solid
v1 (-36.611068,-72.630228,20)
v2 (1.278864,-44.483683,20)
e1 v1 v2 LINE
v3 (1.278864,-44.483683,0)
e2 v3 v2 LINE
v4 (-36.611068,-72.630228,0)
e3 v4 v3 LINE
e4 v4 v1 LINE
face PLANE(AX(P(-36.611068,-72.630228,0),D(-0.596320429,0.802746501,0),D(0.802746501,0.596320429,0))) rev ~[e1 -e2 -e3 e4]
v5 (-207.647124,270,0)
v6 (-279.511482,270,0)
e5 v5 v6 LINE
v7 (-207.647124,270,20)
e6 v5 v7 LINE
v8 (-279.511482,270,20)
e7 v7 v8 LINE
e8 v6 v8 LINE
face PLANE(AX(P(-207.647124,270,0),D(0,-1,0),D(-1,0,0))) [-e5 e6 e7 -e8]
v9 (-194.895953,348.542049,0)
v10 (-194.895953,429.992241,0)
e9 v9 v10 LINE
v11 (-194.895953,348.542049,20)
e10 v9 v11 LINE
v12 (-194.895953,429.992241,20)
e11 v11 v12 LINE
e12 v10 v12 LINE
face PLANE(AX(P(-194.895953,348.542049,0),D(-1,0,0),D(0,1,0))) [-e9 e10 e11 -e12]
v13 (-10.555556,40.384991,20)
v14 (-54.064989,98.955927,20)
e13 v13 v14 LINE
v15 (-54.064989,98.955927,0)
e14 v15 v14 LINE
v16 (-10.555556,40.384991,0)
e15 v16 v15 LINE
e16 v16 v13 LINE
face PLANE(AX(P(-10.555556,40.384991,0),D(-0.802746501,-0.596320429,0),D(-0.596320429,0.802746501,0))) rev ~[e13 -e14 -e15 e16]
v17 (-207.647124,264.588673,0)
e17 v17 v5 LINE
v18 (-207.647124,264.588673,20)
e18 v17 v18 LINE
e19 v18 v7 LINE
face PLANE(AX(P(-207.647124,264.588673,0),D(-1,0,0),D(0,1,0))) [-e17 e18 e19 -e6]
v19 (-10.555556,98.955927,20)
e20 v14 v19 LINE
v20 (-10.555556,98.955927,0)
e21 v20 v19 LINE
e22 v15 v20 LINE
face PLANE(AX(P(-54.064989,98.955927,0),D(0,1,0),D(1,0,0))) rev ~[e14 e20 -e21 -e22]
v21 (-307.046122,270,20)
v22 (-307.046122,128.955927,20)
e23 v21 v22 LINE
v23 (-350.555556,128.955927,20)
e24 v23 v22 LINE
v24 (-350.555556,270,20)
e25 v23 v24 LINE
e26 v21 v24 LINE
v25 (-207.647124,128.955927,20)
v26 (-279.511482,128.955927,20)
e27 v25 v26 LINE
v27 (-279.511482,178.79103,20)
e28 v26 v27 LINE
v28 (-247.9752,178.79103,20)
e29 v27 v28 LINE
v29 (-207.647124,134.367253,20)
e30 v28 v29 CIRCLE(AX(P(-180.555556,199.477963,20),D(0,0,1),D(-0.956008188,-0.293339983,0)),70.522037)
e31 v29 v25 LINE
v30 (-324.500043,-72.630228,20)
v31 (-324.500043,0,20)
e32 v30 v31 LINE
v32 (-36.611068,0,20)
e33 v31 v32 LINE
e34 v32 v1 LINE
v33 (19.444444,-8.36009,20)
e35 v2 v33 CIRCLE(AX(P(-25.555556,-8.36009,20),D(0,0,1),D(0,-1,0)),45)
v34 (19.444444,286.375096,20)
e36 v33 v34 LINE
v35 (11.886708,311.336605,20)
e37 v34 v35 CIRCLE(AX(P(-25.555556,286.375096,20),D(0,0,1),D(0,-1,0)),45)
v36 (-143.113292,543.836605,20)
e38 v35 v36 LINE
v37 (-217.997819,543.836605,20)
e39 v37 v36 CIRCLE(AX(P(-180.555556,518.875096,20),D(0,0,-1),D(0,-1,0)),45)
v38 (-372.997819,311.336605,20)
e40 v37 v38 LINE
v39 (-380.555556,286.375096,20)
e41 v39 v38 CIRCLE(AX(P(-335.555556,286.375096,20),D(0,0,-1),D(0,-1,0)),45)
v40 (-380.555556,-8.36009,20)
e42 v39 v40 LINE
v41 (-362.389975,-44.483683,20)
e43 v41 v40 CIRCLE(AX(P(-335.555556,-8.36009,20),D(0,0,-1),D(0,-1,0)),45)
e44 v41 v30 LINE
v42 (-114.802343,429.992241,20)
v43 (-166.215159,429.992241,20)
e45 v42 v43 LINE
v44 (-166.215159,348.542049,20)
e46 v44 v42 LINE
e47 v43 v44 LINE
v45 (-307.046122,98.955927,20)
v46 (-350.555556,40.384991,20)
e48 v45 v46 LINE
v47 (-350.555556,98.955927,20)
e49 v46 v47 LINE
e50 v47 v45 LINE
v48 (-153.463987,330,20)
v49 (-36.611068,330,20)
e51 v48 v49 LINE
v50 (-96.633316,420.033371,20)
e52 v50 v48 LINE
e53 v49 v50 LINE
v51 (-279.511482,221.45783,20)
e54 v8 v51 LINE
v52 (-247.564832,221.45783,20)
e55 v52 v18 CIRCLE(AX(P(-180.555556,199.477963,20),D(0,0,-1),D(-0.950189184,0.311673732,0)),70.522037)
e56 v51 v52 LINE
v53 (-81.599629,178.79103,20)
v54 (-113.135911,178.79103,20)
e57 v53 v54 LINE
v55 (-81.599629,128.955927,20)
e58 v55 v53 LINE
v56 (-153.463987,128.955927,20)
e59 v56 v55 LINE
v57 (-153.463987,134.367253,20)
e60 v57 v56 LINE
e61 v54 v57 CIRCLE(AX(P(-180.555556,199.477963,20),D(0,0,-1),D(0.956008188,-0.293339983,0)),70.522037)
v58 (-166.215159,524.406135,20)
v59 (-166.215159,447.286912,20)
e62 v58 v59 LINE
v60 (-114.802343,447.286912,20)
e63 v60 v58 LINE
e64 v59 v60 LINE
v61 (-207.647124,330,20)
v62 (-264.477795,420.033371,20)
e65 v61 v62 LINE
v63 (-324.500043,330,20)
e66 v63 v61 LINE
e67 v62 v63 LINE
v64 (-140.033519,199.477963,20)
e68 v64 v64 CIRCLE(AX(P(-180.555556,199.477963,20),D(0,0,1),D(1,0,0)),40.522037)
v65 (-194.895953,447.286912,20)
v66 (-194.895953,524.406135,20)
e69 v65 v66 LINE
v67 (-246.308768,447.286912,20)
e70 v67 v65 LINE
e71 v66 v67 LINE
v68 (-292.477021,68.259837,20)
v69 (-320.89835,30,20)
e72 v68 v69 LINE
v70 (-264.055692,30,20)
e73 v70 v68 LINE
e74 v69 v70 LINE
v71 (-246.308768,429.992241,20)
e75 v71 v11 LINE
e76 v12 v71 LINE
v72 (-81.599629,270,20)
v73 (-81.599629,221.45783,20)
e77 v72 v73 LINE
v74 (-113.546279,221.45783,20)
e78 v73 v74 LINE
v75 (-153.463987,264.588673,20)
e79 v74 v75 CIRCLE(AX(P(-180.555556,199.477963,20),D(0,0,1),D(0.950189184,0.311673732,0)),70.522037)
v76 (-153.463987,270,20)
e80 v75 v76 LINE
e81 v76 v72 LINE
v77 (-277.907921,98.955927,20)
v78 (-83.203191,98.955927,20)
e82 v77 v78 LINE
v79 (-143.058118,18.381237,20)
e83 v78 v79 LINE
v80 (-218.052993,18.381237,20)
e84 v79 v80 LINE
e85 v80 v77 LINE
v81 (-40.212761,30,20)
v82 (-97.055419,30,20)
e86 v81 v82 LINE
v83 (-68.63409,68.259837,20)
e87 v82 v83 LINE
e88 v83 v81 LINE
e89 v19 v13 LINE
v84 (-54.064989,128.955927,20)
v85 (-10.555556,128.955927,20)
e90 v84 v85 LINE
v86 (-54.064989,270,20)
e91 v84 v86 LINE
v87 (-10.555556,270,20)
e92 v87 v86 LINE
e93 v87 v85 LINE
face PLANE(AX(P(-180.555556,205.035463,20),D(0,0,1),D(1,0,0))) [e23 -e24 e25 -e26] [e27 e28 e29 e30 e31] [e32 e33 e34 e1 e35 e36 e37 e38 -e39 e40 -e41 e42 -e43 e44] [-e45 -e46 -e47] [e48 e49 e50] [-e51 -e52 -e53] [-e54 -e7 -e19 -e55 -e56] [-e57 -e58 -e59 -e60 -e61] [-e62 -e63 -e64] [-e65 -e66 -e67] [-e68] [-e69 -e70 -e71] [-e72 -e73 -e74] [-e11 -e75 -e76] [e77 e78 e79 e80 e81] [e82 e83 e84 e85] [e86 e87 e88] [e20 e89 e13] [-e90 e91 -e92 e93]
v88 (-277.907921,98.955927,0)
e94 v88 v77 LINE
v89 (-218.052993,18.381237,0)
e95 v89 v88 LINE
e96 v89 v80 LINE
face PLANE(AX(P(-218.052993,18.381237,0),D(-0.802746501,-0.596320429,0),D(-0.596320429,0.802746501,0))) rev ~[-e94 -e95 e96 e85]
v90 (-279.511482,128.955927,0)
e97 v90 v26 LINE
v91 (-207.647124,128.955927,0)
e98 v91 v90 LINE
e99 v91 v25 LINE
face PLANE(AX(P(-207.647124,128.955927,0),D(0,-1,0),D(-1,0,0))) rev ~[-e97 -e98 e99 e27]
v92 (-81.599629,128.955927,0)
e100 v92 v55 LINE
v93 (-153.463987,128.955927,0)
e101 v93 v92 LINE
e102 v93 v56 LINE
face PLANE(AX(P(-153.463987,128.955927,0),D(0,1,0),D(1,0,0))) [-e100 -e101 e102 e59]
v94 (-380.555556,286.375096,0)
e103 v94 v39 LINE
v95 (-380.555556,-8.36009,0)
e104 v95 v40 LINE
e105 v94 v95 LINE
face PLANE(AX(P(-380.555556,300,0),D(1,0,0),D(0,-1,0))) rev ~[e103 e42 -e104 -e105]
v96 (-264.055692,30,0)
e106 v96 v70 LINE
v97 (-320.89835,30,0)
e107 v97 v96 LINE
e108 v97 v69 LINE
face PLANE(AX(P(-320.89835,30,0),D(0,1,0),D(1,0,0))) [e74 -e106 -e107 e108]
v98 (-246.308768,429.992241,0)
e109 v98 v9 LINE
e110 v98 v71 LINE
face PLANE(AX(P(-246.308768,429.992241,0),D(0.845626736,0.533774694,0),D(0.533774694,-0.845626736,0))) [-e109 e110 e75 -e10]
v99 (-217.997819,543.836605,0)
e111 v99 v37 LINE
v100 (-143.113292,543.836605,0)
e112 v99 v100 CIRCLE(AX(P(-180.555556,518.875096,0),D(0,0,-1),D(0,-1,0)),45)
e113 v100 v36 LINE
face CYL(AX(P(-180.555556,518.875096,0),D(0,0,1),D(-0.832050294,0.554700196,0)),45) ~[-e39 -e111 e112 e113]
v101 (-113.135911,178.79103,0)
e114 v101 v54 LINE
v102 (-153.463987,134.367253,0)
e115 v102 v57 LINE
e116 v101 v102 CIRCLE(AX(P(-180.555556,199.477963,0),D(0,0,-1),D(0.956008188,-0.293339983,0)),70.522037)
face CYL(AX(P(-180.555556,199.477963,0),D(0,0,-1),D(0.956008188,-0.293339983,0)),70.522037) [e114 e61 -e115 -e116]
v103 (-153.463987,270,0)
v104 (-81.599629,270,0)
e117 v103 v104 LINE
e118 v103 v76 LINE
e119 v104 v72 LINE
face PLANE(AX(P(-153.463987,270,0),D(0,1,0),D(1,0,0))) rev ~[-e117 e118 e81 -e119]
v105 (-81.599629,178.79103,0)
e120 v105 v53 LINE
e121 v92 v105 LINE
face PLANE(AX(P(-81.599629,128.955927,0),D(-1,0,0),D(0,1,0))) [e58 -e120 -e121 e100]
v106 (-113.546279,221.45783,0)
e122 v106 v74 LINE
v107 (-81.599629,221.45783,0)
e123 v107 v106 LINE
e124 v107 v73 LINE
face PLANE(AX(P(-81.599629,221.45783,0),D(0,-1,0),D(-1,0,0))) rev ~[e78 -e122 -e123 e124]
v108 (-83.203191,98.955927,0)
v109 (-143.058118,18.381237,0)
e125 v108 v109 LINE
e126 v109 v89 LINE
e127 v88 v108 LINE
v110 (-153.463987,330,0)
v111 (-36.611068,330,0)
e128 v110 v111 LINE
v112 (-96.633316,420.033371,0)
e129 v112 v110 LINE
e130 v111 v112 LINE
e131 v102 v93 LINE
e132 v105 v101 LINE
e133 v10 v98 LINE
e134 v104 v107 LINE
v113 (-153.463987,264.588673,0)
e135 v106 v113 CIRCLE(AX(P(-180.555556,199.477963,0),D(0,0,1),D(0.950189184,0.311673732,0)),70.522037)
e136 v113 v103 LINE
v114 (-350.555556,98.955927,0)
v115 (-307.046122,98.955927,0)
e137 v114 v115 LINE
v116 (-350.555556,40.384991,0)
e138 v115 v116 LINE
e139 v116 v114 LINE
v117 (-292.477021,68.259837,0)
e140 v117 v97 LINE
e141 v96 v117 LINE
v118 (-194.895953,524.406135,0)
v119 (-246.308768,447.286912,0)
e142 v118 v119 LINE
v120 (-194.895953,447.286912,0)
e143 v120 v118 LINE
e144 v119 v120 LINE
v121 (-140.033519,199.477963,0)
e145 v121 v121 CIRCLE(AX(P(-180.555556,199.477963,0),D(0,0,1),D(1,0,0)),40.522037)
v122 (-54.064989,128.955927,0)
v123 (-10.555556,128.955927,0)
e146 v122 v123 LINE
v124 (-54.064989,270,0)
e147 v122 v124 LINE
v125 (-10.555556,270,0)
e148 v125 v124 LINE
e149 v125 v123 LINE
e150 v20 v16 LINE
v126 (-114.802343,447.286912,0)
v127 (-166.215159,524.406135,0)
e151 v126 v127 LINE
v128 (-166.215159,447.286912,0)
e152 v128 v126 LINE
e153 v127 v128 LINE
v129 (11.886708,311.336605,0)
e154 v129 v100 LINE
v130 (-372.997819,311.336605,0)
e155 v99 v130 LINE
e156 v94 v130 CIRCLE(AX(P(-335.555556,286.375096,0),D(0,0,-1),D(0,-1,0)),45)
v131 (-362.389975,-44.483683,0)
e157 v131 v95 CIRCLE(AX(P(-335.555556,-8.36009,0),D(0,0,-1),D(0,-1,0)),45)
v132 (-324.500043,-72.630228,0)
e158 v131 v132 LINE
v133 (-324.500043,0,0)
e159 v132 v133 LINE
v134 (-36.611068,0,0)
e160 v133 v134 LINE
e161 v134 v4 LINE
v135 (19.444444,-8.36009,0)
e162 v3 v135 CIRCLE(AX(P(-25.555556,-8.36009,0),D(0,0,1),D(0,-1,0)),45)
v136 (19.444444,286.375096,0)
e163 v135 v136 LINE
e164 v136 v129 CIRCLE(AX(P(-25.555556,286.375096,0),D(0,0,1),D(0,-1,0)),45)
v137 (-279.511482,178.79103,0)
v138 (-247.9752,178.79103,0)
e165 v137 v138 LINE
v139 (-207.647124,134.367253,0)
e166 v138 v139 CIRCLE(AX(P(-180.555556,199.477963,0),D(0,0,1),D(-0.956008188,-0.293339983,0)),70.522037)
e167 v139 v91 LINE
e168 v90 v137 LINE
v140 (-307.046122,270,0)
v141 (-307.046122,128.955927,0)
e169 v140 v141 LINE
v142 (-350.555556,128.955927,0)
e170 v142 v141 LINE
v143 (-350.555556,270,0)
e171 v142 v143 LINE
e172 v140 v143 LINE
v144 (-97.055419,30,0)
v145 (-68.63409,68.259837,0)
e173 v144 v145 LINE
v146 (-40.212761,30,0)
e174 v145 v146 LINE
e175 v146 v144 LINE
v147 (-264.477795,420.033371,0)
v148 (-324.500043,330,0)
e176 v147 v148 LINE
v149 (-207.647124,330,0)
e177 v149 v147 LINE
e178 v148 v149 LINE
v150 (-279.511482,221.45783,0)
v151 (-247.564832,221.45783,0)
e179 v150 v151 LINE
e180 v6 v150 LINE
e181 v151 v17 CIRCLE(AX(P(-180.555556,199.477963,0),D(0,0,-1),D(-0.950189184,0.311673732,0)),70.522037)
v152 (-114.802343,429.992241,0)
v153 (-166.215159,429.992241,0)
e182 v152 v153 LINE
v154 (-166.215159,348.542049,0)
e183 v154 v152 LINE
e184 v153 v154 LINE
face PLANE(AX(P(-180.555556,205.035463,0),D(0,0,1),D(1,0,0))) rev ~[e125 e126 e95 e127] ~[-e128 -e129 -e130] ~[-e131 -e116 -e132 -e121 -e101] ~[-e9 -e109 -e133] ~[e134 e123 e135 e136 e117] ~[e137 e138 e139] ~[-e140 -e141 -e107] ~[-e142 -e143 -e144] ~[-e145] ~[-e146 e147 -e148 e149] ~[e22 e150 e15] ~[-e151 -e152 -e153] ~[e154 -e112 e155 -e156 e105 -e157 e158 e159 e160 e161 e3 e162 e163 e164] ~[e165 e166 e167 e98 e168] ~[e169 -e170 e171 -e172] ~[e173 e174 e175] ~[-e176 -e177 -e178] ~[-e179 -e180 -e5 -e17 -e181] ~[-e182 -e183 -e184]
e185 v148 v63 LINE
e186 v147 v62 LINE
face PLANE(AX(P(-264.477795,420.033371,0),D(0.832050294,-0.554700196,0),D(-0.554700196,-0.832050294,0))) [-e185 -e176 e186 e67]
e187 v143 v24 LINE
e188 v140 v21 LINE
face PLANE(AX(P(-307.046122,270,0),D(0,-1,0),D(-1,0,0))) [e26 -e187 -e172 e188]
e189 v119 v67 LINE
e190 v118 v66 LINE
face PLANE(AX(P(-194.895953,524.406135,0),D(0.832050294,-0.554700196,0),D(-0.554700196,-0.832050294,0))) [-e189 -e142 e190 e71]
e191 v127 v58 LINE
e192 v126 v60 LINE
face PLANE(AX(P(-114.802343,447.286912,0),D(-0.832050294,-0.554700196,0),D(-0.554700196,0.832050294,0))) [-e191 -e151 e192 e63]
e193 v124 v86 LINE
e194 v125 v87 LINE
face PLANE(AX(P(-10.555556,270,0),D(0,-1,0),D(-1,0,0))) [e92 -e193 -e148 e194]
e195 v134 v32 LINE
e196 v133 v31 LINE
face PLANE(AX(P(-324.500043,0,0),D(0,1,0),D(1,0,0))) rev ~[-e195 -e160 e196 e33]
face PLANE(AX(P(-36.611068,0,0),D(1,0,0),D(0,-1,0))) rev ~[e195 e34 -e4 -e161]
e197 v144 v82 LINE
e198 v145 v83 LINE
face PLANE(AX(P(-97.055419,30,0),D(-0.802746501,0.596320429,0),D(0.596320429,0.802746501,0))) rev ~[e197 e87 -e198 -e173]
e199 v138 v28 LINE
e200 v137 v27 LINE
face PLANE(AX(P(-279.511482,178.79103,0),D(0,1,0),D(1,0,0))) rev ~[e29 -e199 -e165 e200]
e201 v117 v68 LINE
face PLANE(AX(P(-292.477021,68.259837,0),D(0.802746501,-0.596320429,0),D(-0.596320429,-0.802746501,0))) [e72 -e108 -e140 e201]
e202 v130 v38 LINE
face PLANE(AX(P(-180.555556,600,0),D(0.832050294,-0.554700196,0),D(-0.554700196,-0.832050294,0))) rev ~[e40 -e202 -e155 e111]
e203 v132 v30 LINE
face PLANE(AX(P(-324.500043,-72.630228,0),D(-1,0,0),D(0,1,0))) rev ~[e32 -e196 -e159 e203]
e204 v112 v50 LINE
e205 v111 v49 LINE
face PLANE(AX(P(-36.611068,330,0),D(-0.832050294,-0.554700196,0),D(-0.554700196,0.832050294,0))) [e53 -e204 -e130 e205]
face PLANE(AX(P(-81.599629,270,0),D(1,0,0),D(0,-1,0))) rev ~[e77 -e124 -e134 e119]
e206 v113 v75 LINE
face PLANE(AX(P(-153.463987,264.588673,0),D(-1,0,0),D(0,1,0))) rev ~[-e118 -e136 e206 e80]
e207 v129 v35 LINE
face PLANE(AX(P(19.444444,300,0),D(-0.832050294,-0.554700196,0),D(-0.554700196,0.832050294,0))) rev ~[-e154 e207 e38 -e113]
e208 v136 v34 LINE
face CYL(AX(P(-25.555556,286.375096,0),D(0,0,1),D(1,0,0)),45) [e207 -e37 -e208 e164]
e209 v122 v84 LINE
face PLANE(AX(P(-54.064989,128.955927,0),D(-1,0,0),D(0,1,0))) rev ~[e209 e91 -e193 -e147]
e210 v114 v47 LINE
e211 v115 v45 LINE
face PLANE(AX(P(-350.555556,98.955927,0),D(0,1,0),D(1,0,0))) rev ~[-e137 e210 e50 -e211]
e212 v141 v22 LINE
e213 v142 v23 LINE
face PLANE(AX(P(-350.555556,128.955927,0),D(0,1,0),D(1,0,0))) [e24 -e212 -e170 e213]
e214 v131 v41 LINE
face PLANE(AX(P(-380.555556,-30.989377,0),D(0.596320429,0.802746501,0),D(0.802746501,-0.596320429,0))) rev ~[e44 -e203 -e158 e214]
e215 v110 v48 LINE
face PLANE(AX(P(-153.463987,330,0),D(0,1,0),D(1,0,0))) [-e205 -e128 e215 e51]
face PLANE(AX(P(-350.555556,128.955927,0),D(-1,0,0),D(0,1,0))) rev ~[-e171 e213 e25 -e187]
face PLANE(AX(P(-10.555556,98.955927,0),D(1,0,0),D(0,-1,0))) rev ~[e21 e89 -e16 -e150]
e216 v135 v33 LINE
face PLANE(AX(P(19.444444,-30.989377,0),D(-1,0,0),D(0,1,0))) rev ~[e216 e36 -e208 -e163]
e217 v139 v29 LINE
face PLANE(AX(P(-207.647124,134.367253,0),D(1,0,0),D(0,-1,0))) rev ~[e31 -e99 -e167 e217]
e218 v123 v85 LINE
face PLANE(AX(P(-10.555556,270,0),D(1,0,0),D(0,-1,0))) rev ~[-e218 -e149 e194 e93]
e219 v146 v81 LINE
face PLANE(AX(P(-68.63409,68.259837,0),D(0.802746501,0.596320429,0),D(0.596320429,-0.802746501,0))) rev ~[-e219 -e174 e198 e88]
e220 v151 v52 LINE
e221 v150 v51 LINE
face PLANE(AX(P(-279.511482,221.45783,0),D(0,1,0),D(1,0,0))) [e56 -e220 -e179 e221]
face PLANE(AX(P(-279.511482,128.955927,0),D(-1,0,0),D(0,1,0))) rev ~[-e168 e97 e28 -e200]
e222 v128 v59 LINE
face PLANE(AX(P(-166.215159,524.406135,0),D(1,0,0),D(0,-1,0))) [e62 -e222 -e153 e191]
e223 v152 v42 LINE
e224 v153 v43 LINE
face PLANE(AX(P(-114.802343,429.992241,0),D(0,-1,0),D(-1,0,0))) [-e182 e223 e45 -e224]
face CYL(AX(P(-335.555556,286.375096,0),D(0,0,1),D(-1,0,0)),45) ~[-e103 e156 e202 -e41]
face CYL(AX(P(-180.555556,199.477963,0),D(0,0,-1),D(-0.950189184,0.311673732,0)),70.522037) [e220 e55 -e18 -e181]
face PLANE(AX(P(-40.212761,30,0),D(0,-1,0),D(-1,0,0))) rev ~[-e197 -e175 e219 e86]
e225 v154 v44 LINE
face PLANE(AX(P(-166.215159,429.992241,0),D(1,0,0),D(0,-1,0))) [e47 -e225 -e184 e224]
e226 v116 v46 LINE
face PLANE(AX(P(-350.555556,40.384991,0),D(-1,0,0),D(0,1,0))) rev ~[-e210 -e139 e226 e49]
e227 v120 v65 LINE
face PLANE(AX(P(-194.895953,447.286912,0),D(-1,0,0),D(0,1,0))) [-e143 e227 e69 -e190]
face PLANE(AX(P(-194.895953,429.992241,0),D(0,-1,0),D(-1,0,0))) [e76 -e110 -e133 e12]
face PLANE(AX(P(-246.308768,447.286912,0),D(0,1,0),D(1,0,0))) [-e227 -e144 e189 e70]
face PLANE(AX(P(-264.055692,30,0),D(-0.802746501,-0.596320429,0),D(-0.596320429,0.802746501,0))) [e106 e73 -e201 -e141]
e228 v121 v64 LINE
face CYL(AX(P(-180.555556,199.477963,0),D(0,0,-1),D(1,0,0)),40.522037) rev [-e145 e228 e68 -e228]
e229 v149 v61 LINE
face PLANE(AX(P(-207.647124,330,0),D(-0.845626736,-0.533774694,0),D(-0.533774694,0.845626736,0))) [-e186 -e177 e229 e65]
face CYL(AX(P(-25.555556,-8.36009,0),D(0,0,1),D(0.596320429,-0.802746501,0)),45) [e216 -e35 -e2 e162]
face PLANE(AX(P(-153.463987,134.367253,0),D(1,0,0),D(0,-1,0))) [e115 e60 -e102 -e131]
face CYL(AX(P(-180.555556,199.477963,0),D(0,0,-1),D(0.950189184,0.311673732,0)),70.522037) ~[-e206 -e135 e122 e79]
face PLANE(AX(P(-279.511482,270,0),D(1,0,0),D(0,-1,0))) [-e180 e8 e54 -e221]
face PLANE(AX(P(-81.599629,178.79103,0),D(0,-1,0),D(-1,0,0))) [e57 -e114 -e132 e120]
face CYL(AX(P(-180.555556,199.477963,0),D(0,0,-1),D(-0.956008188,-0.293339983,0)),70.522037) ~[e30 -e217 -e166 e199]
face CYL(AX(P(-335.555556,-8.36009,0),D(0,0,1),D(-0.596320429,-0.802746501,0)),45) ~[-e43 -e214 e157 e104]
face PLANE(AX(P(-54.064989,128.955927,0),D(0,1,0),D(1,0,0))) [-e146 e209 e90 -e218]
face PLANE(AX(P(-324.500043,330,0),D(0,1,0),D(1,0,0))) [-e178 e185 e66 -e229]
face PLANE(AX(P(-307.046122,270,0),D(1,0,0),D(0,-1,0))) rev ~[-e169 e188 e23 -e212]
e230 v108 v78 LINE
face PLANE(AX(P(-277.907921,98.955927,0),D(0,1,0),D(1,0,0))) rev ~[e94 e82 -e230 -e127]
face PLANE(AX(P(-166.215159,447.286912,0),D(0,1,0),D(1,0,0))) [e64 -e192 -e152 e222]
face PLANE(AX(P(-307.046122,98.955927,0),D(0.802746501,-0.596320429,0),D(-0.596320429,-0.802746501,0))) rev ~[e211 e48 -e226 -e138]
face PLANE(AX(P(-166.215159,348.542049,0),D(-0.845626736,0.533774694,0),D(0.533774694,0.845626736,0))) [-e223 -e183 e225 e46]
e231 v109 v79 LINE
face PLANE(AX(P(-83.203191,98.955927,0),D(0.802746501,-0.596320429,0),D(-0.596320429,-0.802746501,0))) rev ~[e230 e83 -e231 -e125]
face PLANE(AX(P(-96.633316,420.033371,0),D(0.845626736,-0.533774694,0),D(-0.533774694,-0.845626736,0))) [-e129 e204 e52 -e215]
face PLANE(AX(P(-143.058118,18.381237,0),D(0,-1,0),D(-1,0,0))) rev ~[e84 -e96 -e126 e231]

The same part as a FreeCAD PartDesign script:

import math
import FreeCAD as App
import Part
import Sketcher


def edges_at(feature, points):
    """Names of the edges that pass closest to the given points."""
    edges = feature.Shape.Edges
    near = lambda p: min(range(len(edges)), key=lambda i: edges[i].distToShape(Part.Vertex(*p))[0])
    return sorted({f"Edge{near(p) + 1}" for p in points})

doc = App.newDocument("Part")
body = doc.addObject("PartDesign::Body", "Body")

sketch1 = body.newObject("Sketcher::SketchObject", "Sketch")
sketch1.AttachmentSupport = (doc.getObject("XY_Plane"), [""])
sketch1.MapMode = "FlatFace"
sketch1.addGeometry(Part.LineSegment(App.Vector(-324.500043, 0, 0), App.Vector(-36.611068, 0, 0)), False)
sketch1.addGeometry(Part.LineSegment(App.Vector(-36.611068, 0, 0), App.Vector(-36.611068, -72.630228, 0)), False)
sketch1.addGeometry(Part.LineSegment(App.Vector(-36.611068, -72.630228, 0), App.Vector(19.444444, -30.989377, 0)), False)
sketch1.addGeometry(Part.LineSegment(App.Vector(19.444444, -30.989377, 0), App.Vector(19.444444, 300, 0)), False)
sketch1.addGeometry(Part.LineSegment(App.Vector(19.444444, 300, 0), App.Vector(-180.555556, 600, 0)), False)
sketch1.addGeometry(Part.LineSegment(App.Vector(-180.555556, 600, 0), App.Vector(-380.555556, 300, 0)), False)
sketch1.addGeometry(Part.LineSegment(App.Vector(-380.555556, 300, 0), App.Vector(-380.555556, -30.989377, 0)), False)
sketch1.addGeometry(Part.LineSegment(App.Vector(-380.555556, -30.989377, 0), App.Vector(-324.500043, -72.630228, 0)), False)
sketch1.addGeometry(Part.LineSegment(App.Vector(-324.500043, -72.630228, 0), App.Vector(-324.500043, 0, 0)), False)
sketch1.addGeometry(Part.LineSegment(App.Vector(-350.555556, 40.384991, 0), App.Vector(-350.555556, 98.955927, 0)), False)
sketch1.addGeometry(Part.LineSegment(App.Vector(-350.555556, 98.955927, 0), App.Vector(-307.046122, 98.955927, 0)), False)
sketch1.addGeometry(Part.LineSegment(App.Vector(-307.046122, 98.955927, 0), App.Vector(-350.555556, 40.384991, 0)), False)
sketch1.addGeometry(Part.LineSegment(App.Vector(-264.055692, 30, 0), App.Vector(-320.89835, 30, 0)), False)
sketch1.addGeometry(Part.LineSegment(App.Vector(-320.89835, 30, 0), App.Vector(-292.477021, 68.259837, 0)), False)
sketch1.addGeometry(Part.LineSegment(App.Vector(-292.477021, 68.259837, 0), App.Vector(-264.055692, 30, 0)), False)
sketch1.addGeometry(Part.LineSegment(App.Vector(-307.046122, 128.955927, 0), App.Vector(-350.555556, 128.955927, 0)), False)
sketch1.addGeometry(Part.LineSegment(App.Vector(-350.555556, 128.955927, 0), App.Vector(-350.555556, 270, 0)), False)
sketch1.addGeometry(Part.LineSegment(App.Vector(-350.555556, 270, 0), App.Vector(-307.046122, 270, 0)), False)
sketch1.addGeometry(Part.LineSegment(App.Vector(-307.046122, 270, 0), App.Vector(-307.046122, 128.955927, 0)), False)
sketch1.addGeometry(Part.LineSegment(App.Vector(-207.647124, 128.955927, 0), App.Vector(-279.511482, 128.955927, 0)), False)
sketch1.addGeometry(Part.LineSegment(App.Vector(-279.511482, 128.955927, 0), App.Vector(-279.511482, 178.79103, 0)), False)
sketch1.addGeometry(Part.LineSegment(App.Vector(-279.511482, 178.79103, 0), App.Vector(-247.9752, 178.79103, 0)), False)
sketch1.addGeometry(Part.ArcOfCircle(Part.Circle(App.Vector(-180.555556, 199.477963, 0), App.Vector(0, 0, 1), 70.522037), math.radians(-162.941978), math.radians(-112.591446)), False)
sketch1.addGeometry(Part.LineSegment(App.Vector(-207.647124, 134.367253, 0), App.Vector(-207.647124, 128.955927, 0)), False)
sketch1.addGeometry(Part.LineSegment(App.Vector(-279.511482, 221.45783, 0), App.Vector(-279.511482, 270, 0)), False)
sketch1.addGeometry(Part.LineSegment(App.Vector(-279.511482, 270, 0), App.Vector(-207.647124, 270, 0)), False)
sketch1.addGeometry(Part.LineSegment(App.Vector(-207.647124, 270, 0), App.Vector(-207.647124, 264.588673, 0)), False)
sketch1.addGeometry(Part.ArcOfCircle(Part.Circle(App.Vector(-180.555556, 199.477963, 0), App.Vector(0, 0, 1), 70.522037), math.radians(112.591446), math.radians(161.839874)), False)
sketch1.addGeometry(Part.LineSegment(App.Vector(-247.564832, 221.45783, 0), App.Vector(-279.511482, 221.45783, 0)), False)
sketch1.addGeometry(Part.LineSegment(App.Vector(-143.058118, 18.381237, 0), App.Vector(-218.052993, 18.381237, 0)), False)
sketch1.addGeometry(Part.LineSegment(App.Vector(-218.052993, 18.381237, 0), App.Vector(-277.907921, 98.955927, 0)), False)
sketch1.addGeometry(Part.LineSegment(App.Vector(-277.907921, 98.955927, 0), App.Vector(-83.203191, 98.955927, 0)), False)
sketch1.addGeometry(Part.LineSegment(App.Vector(-83.203191, 98.955927, 0), App.Vector(-143.058118, 18.381237, 0)), False)
sketch1.addGeometry(Part.LineSegment(App.Vector(-68.63409, 68.259837, 0), App.Vector(-40.212761, 30, 0)), False)
sketch1.addGeometry(Part.LineSegment(App.Vector(-40.212761, 30, 0), App.Vector(-97.055419, 30, 0)), False)
sketch1.addGeometry(Part.LineSegment(App.Vector(-97.055419, 30, 0), App.Vector(-68.63409, 68.259837, 0)), False)
sketch1.addGeometry(Part.LineSegment(App.Vector(-10.555556, 98.955927, 0), App.Vector(-10.555556, 40.384991, 0)), False)
sketch1.addGeometry(Part.LineSegment(App.Vector(-10.555556, 40.384991, 0), App.Vector(-54.064989, 98.955927, 0)), False)
sketch1.addGeometry(Part.LineSegment(App.Vector(-54.064989, 98.955927, 0), App.Vector(-10.555556, 98.955927, 0)), False)
sketch1.addGeometry(Part.Circle(App.Vector(-180.555556, 199.477963, 0), App.Vector(0, 0, 1), 40.522037), False)
sketch1.addGeometry(Part.LineSegment(App.Vector(-153.463987, 128.955927, 0), App.Vector(-153.463987, 134.367253, 0)), False)
sketch1.addGeometry(Part.ArcOfCircle(Part.Circle(App.Vector(-180.555556, 199.477963, 0), App.Vector(0, 0, 1), 70.522037), math.radians(-67.408554), math.radians(-17.058022)), False)
sketch1.addGeometry(Part.LineSegment(App.Vector(-113.135911, 178.79103, 0), App.Vector(-81.599629, 178.79103, 0)), False)
sketch1.addGeometry(Part.LineSegment(App.Vector(-81.599629, 178.79103, 0), App.Vector(-81.599629, 128.955927, 0)), False)
sketch1.addGeometry(Part.LineSegment(App.Vector(-81.599629, 128.955927, 0), App.Vector(-153.463987, 128.955927, 0)), False)
sketch1.addGeometry(Part.ArcOfCircle(Part.Circle(App.Vector(-180.555556, 199.477963, 0), App.Vector(0, 0, 1), 70.522037), math.radians(18.160126), math.radians(67.408554)), False)
sketch1.addGeometry(Part.LineSegment(App.Vector(-153.463987, 264.588673, 0), App.Vector(-153.463987, 270, 0)), False)
sketch1.addGeometry(Part.LineSegment(App.Vector(-153.463987, 270, 0), App.Vector(-81.599629, 270, 0)), False)
sketch1.addGeometry(Part.LineSegment(App.Vector(-81.599629, 270, 0), App.Vector(-81.599629, 221.45783, 0)), False)
sketch1.addGeometry(Part.LineSegment(App.Vector(-81.599629, 221.45783, 0), App.Vector(-113.546279, 221.45783, 0)), False)
sketch1.addGeometry(Part.LineSegment(App.Vector(-10.555556, 270, 0), App.Vector(-10.555556, 128.955927, 0)), False)
sketch1.addGeometry(Part.LineSegment(App.Vector(-10.555556, 128.955927, 0), App.Vector(-54.064989, 128.955927, 0)), False)
sketch1.addGeometry(Part.LineSegment(App.Vector(-54.064989, 128.955927, 0), App.Vector(-54.064989, 270, 0)), False)
sketch1.addGeometry(Part.LineSegment(App.Vector(-54.064989, 270, 0), App.Vector(-10.555556, 270, 0)), False)
sketch1.addGeometry(Part.LineSegment(App.Vector(-207.647124, 330, 0), App.Vector(-324.500043, 330, 0)), False)
sketch1.addGeometry(Part.LineSegment(App.Vector(-324.500043, 330, 0), App.Vector(-264.477795, 420.033371, 0)), False)
sketch1.addGeometry(Part.LineSegment(App.Vector(-264.477795, 420.033371, 0), App.Vector(-207.647124, 330, 0)), False)
sketch1.addGeometry(Part.LineSegment(App.Vector(-194.895953, 348.542049, 0), App.Vector(-246.308768, 429.992241, 0)), False)
sketch1.addGeometry(Part.LineSegment(App.Vector(-246.308768, 429.992241, 0), App.Vector(-194.895953, 429.992241, 0)), False)
sketch1.addGeometry(Part.LineSegment(App.Vector(-194.895953, 429.992241, 0), App.Vector(-194.895953, 348.542049, 0)), False)
sketch1.addGeometry(Part.LineSegment(App.Vector(-246.308768, 447.286912, 0), App.Vector(-194.895953, 524.406135, 0)), False)
sketch1.addGeometry(Part.LineSegment(App.Vector(-194.895953, 524.406135, 0), App.Vector(-194.895953, 447.286912, 0)), False)
sketch1.addGeometry(Part.LineSegment(App.Vector(-194.895953, 447.286912, 0), App.Vector(-246.308768, 447.286912, 0)), False)
sketch1.addGeometry(Part.LineSegment(App.Vector(-166.215159, 429.992241, 0), App.Vector(-114.802343, 429.992241, 0)), False)
sketch1.addGeometry(Part.LineSegment(App.Vector(-114.802343, 429.992241, 0), App.Vector(-166.215159, 348.542049, 0)), False)
sketch1.addGeometry(Part.LineSegment(App.Vector(-166.215159, 348.542049, 0), App.Vector(-166.215159, 429.992241, 0)), False)
sketch1.addGeometry(Part.LineSegment(App.Vector(-96.633316, 420.033371, 0), App.Vector(-36.611068, 330, 0)), False)
sketch1.addGeometry(Part.LineSegment(App.Vector(-36.611068, 330, 0), App.Vector(-153.463987, 330, 0)), False)
sketch1.addGeometry(Part.LineSegment(App.Vector(-153.463987, 330, 0), App.Vector(-96.633316, 420.033371, 0)), False)
sketch1.addGeometry(Part.LineSegment(App.Vector(-166.215159, 524.406135, 0), App.Vector(-114.802343, 447.286912, 0)), False)
sketch1.addGeometry(Part.LineSegment(App.Vector(-114.802343, 447.286912, 0), App.Vector(-166.215159, 447.286912, 0)), False)
sketch1.addGeometry(Part.LineSegment(App.Vector(-166.215159, 447.286912, 0), App.Vector(-166.215159, 524.406135, 0)), False)
sketch1.addConstraint(Sketcher.Constraint("Coincident", 0, 2, 1, 1))
sketch1.addConstraint(Sketcher.Constraint("Coincident", 1, 2, 2, 1))
sketch1.addConstraint(Sketcher.Constraint("Coincident", 2, 2, 3, 1))
sketch1.addConstraint(Sketcher.Constraint("Coincident", 3, 2, 4, 1))
sketch1.addConstraint(Sketcher.Constraint("Coincident", 4, 2, 5, 1))
sketch1.addConstraint(Sketcher.Constraint("Coincident", 5, 2, 6, 1))
sketch1.addConstraint(Sketcher.Constraint("Coincident", 6, 2, 7, 1))
sketch1.addConstraint(Sketcher.Constraint("Coincident", 7, 2, 8, 1))
sketch1.addConstraint(Sketcher.Constraint("Coincident", 8, 2, 0, 1))
sketch1.addConstraint(Sketcher.Constraint("Coincident", 9, 2, 10, 1))
sketch1.addConstraint(Sketcher.Constraint("Coincident", 10, 2, 11, 1))
sketch1.addConstraint(Sketcher.Constraint("Coincident", 11, 2, 9, 1))
sketch1.addConstraint(Sketcher.Constraint("Coincident", 12, 2, 13, 1))
sketch1.addConstraint(Sketcher.Constraint("Coincident", 13, 2, 14, 1))
sketch1.addConstraint(Sketcher.Constraint("Coincident", 14, 2, 12, 1))
sketch1.addConstraint(Sketcher.Constraint("Coincident", 15, 2, 16, 1))
sketch1.addConstraint(Sketcher.Constraint("Coincident", 16, 2, 17, 1))
sketch1.addConstraint(Sketcher.Constraint("Coincident", 17, 2, 18, 1))
sketch1.addConstraint(Sketcher.Constraint("Coincident", 18, 2, 15, 1))
sketch1.addConstraint(Sketcher.Constraint("Coincident", 19, 2, 20, 1))
sketch1.addConstraint(Sketcher.Constraint("Coincident", 20, 2, 21, 1))
sketch1.addConstraint(Sketcher.Constraint("Coincident", 21, 2, 22, 1))
sketch1.addConstraint(Sketcher.Constraint("Coincident", 22, 2, 23, 1))
sketch1.addConstraint(Sketcher.Constraint("Coincident", 23, 2, 19, 1))
sketch1.addConstraint(Sketcher.Constraint("Coincident", 24, 2, 25, 1))
sketch1.addConstraint(Sketcher.Constraint("Coincident", 25, 2, 26, 1))
sketch1.addConstraint(Sketcher.Constraint("Coincident", 26, 2, 27, 1))
sketch1.addConstraint(Sketcher.Constraint("Coincident", 27, 2, 28, 1))
sketch1.addConstraint(Sketcher.Constraint("Coincident", 28, 2, 24, 1))
sketch1.addConstraint(Sketcher.Constraint("Coincident", 29, 2, 30, 1))
sketch1.addConstraint(Sketcher.Constraint("Coincident", 30, 2, 31, 1))
sketch1.addConstraint(Sketcher.Constraint("Coincident", 31, 2, 32, 1))
sketch1.addConstraint(Sketcher.Constraint("Coincident", 32, 2, 29, 1))
sketch1.addConstraint(Sketcher.Constraint("Coincident", 33, 2, 34, 1))
sketch1.addConstraint(Sketcher.Constraint("Coincident", 34, 2, 35, 1))
sketch1.addConstraint(Sketcher.Constraint("Coincident", 35, 2, 33, 1))
sketch1.addConstraint(Sketcher.Constraint("Coincident", 36, 2, 37, 1))
sketch1.addConstraint(Sketcher.Constraint("Coincident", 37, 2, 38, 1))
sketch1.addConstraint(Sketcher.Constraint("Coincident", 38, 2, 36, 1))
sketch1.addConstraint(Sketcher.Constraint("Coincident", 40, 2, 41, 1))
sketch1.addConstraint(Sketcher.Constraint("Coincident", 41, 2, 42, 1))
sketch1.addConstraint(Sketcher.Constraint("Coincident", 42, 2, 43, 1))
sketch1.addConstraint(Sketcher.Constraint("Coincident", 43, 2, 44, 1))
sketch1.addConstraint(Sketcher.Constraint("Coincident", 44, 2, 40, 1))
sketch1.addConstraint(Sketcher.Constraint("Coincident", 45, 2, 46, 1))
sketch1.addConstraint(Sketcher.Constraint("Coincident", 46, 2, 47, 1))
sketch1.addConstraint(Sketcher.Constraint("Coincident", 47, 2, 48, 1))
sketch1.addConstraint(Sketcher.Constraint("Coincident", 48, 2, 49, 1))
sketch1.addConstraint(Sketcher.Constraint("Coincident", 49, 2, 45, 1))
sketch1.addConstraint(Sketcher.Constraint("Coincident", 50, 2, 51, 1))
sketch1.addConstraint(Sketcher.Constraint("Coincident", 51, 2, 52, 1))
sketch1.addConstraint(Sketcher.Constraint("Coincident", 52, 2, 53, 1))
sketch1.addConstraint(Sketcher.Constraint("Coincident", 53, 2, 50, 1))
sketch1.addConstraint(Sketcher.Constraint("Coincident", 54, 2, 55, 1))
sketch1.addConstraint(Sketcher.Constraint("Coincident", 55, 2, 56, 1))
sketch1.addConstraint(Sketcher.Constraint("Coincident", 56, 2, 54, 1))
sketch1.addConstraint(Sketcher.Constraint("Coincident", 57, 2, 58, 1))
sketch1.addConstraint(Sketcher.Constraint("Coincident", 58, 2, 59, 1))
sketch1.addConstraint(Sketcher.Constraint("Coincident", 59, 2, 57, 1))
sketch1.addConstraint(Sketcher.Constraint("Coincident", 60, 2, 61, 1))
sketch1.addConstraint(Sketcher.Constraint("Coincident", 61, 2, 62, 1))
sketch1.addConstraint(Sketcher.Constraint("Coincident", 62, 2, 60, 1))
sketch1.addConstraint(Sketcher.Constraint("Coincident", 63, 2, 64, 1))
sketch1.addConstraint(Sketcher.Constraint("Coincident", 64, 2, 65, 1))
sketch1.addConstraint(Sketcher.Constraint("Coincident", 65, 2, 63, 1))
sketch1.addConstraint(Sketcher.Constraint("Coincident", 66, 2, 67, 1))
sketch1.addConstraint(Sketcher.Constraint("Coincident", 67, 2, 68, 1))
sketch1.addConstraint(Sketcher.Constraint("Coincident", 68, 2, 66, 1))
sketch1.addConstraint(Sketcher.Constraint("Coincident", 69, 2, 70, 1))
sketch1.addConstraint(Sketcher.Constraint("Coincident", 70, 2, 71, 1))
sketch1.addConstraint(Sketcher.Constraint("Coincident", 71, 2, 69, 1))
sketch1.addConstraint(Sketcher.Constraint("Horizontal", 0))
sketch1.addConstraint(Sketcher.Constraint("Vertical", 1))
sketch1.addConstraint(Sketcher.Constraint("Vertical", 3))
sketch1.addConstraint(Sketcher.Constraint("Vertical", 6))
sketch1.addConstraint(Sketcher.Constraint("Vertical", 8))
sketch1.addConstraint(Sketcher.Constraint("Vertical", 9))
sketch1.addConstraint(Sketcher.Constraint("Horizontal", 10))
sketch1.addConstraint(Sketcher.Constraint("Horizontal", 12))
sketch1.addConstraint(Sketcher.Constraint("Horizontal", 15))
sketch1.addConstraint(Sketcher.Constraint("Vertical", 16))
sketch1.addConstraint(Sketcher.Constraint("Horizontal", 17))
sketch1.addConstraint(Sketcher.Constraint("Vertical", 18))
sketch1.addConstraint(Sketcher.Constraint("Horizontal", 19))
sketch1.addConstraint(Sketcher.Constraint("Vertical", 20))
sketch1.addConstraint(Sketcher.Constraint("Horizontal", 21))
sketch1.addConstraint(Sketcher.Constraint("Vertical", 23))
sketch1.addConstraint(Sketcher.Constraint("Vertical", 24))
sketch1.addConstraint(Sketcher.Constraint("Horizontal", 25))
sketch1.addConstraint(Sketcher.Constraint("Vertical", 26))
sketch1.addConstraint(Sketcher.Constraint("Horizontal", 28))
sketch1.addConstraint(Sketcher.Constraint("Horizontal", 29))
sketch1.addConstraint(Sketcher.Constraint("Horizontal", 31))
sketch1.addConstraint(Sketcher.Constraint("Horizontal", 34))
sketch1.addConstraint(Sketcher.Constraint("Vertical", 36))
sketch1.addConstraint(Sketcher.Constraint("Horizontal", 38))
sketch1.addConstraint(Sketcher.Constraint("Vertical", 40))
sketch1.addConstraint(Sketcher.Constraint("Horizontal", 42))
sketch1.addConstraint(Sketcher.Constraint("Vertical", 43))
sketch1.addConstraint(Sketcher.Constraint("Horizontal", 44))
sketch1.addConstraint(Sketcher.Constraint("Vertical", 46))
sketch1.addConstraint(Sketcher.Constraint("Horizontal", 47))
sketch1.addConstraint(Sketcher.Constraint("Vertical", 48))
sketch1.addConstraint(Sketcher.Constraint("Horizontal", 49))
sketch1.addConstraint(Sketcher.Constraint("Vertical", 50))
sketch1.addConstraint(Sketcher.Constraint("Horizontal", 51))
sketch1.addConstraint(Sketcher.Constraint("Vertical", 52))
sketch1.addConstraint(Sketcher.Constraint("Horizontal", 53))
sketch1.addConstraint(Sketcher.Constraint("Horizontal", 54))
sketch1.addConstraint(Sketcher.Constraint("Horizontal", 58))
sketch1.addConstraint(Sketcher.Constraint("Vertical", 59))
sketch1.addConstraint(Sketcher.Constraint("Vertical", 61))
sketch1.addConstraint(Sketcher.Constraint("Horizontal", 62))
sketch1.addConstraint(Sketcher.Constraint("Horizontal", 63))
sketch1.addConstraint(Sketcher.Constraint("Vertical", 65))
sketch1.addConstraint(Sketcher.Constraint("Horizontal", 67))
sketch1.addConstraint(Sketcher.Constraint("Horizontal", 70))
sketch1.addConstraint(Sketcher.Constraint("Vertical", 71))
sketch1.addConstraint(Sketcher.Constraint("Coincident", 27, 3, 22, 3))
sketch1.addConstraint(Sketcher.Constraint("Coincident", 39, 3, 22, 3))
sketch1.addConstraint(Sketcher.Constraint("Coincident", 41, 3, 22, 3))
sketch1.addConstraint(Sketcher.Constraint("Coincident", 45, 3, 22, 3))
sketch1.addConstraint(Sketcher.Constraint("Equal", 22, 27))
sketch1.addConstraint(Sketcher.Constraint("Equal", 27, 41))
sketch1.addConstraint(Sketcher.Constraint("Equal", 41, 45))
sketch1.addConstraint(Sketcher.Constraint("PointOnObject", 0, 2, -1))
sketch1.addConstraint(Sketcher.Constraint("Perpendicular", 7, 11))
sketch1.addConstraint(Sketcher.Constraint("Parallel", 11, 13))
sketch1.addConstraint(Sketcher.Constraint("Perpendicular", 2, 14))
sketch1.addConstraint(Sketcher.Constraint("Parallel", 14, 30))
sketch1.addConstraint(Sketcher.Constraint("Parallel", 13, 32))
sketch1.addConstraint(Sketcher.Constraint("Parallel", 30, 33))
sketch1.addConstraint(Sketcher.Constraint("Parallel", 32, 35))
sketch1.addConstraint(Sketcher.Constraint("Parallel", 33, 37))
sketch1.addConstraint(Sketcher.Constraint("Parallel", 5, 55))
sketch1.addConstraint(Sketcher.Constraint("Parallel", 56, 57))
sketch1.addConstraint(Sketcher.Constraint("Parallel", 55, 60))
sketch1.addConstraint(Sketcher.Constraint("Parallel", 4, 66))
sketch1.addConstraint(Sketcher.Constraint("Parallel", 64, 68))
sketch1.addConstraint(Sketcher.Constraint("Parallel", 66, 69))
sketch1.addConstraint(Sketcher.Constraint("Horizontal", 3, 2, 5, 2))
sketch1.addConstraint(Sketcher.Constraint("Horizontal", 2, 2, 6, 2))
sketch1.addConstraint(Sketcher.Constraint("Horizontal", 1, 2, 7, 2))
sketch1.addConstraint(Sketcher.Constraint("Horizontal", 18, 2, 19, 2))
sketch1.addConstraint(Sketcher.Constraint("Horizontal", 17, 2, 24, 2))
sketch1.addConstraint(Sketcher.Constraint("Horizontal", 10, 2, 30, 2))
sketch1.addConstraint(Sketcher.Constraint("Horizontal", 14, 2, 33, 2))
sketch1.addConstraint(Sketcher.Constraint("Horizontal", 13, 2, 35, 2))
sketch1.addConstraint(Sketcher.Constraint("Horizontal", 11, 2, 36, 2))
sketch1.addConstraint(Sketcher.Constraint("Horizontal", 31, 2, 37, 2))
sketch1.addConstraint(Sketcher.Constraint("Horizontal", 22, 2, 40, 2))
sketch1.addConstraint(Sketcher.Constraint("Horizontal", 21, 2, 41, 2))
sketch1.addConstraint(Sketcher.Constraint("Horizontal", 23, 2, 43, 2))
sketch1.addConstraint(Sketcher.Constraint("Horizontal", 26, 2, 45, 2))
sketch1.addConstraint(Sketcher.Constraint("Horizontal", 25, 2, 46, 2))
sketch1.addConstraint(Sketcher.Constraint("Horizontal", 28, 2, 48, 2))
sketch1.addConstraint(Sketcher.Constraint("Horizontal", 44, 2, 50, 2))
sketch1.addConstraint(Sketcher.Constraint("Horizontal", 47, 2, 52, 2))
sketch1.addConstraint(Sketcher.Constraint("Horizontal", 58, 2, 63, 2))
sketch1.addConstraint(Sketcher.Constraint("Horizontal", 59, 2, 64, 2))
sketch1.addConstraint(Sketcher.Constraint("Horizontal", 56, 2, 66, 2))
sketch1.addConstraint(Sketcher.Constraint("Horizontal", 55, 2, 68, 2))
sketch1.addConstraint(Sketcher.Constraint("Horizontal", 62, 2, 69, 2))
sketch1.addConstraint(Sketcher.Constraint("Horizontal", 60, 2, 71, 2))
sketch1.addConstraint(Sketcher.Constraint("Vertical", 45, 3, 4, 2))
sketch1.addConstraint(Sketcher.Constraint("Vertical", 11, 2, 15, 2))
sketch1.addConstraint(Sketcher.Constraint("Vertical", 10, 2, 17, 2))
sketch1.addConstraint(Sketcher.Constraint("Vertical", 20, 2, 24, 2))
sketch1.addConstraint(Sketcher.Constraint("Vertical", 23, 2, 25, 2))
sketch1.addConstraint(Sketcher.Constraint("Vertical", 43, 2, 47, 2))
sketch1.addConstraint(Sketcher.Constraint("Vertical", 38, 2, 50, 2))
sketch1.addConstraint(Sketcher.Constraint("Vertical", 37, 2, 51, 2))
sketch1.addConstraint(Sketcher.Constraint("Vertical", 8, 2, 54, 2))
sketch1.addConstraint(Sketcher.Constraint("Vertical", 26, 2, 56, 2))
sketch1.addConstraint(Sketcher.Constraint("Vertical", 59, 2, 60, 2))
sketch1.addConstraint(Sketcher.Constraint("Vertical", 57, 2, 62, 2))
sketch1.addConstraint(Sketcher.Constraint("Vertical", 1, 2, 66, 2))
sketch1.addConstraint(Sketcher.Constraint("Vertical", 46, 2, 67, 2))
sketch1.addConstraint(Sketcher.Constraint("Vertical", 63, 2, 69, 2))
sketch1.addConstraint(Sketcher.Constraint("Vertical", 65, 2, 70, 2))
sketch1.addConstraint(Sketcher.Constraint("Equal", 17, 38))
sketch1.addConstraint(Sketcher.Constraint("Equal", 21, 42))
sketch1.addConstraint(Sketcher.Constraint("Equal", 23, 26))
sketch1.addConstraint(Sketcher.Constraint("DistanceY", -1, 1, 3, 2, 300.0))
sketch1.addConstraint(Sketcher.Constraint("DistanceY", -1, 1, 4, 2, 600.0))
sketch1.addConstraint(Sketcher.Constraint("DistanceY", -1, 1, 12, 2, 30.0))
sketch1.addConstraint(Sketcher.Constraint("DistanceY", -1, 1, 16, 2, 270.0))
sketch1.addConstraint(Sketcher.Constraint("DistanceY", -1, 1, 54, 2, 330.0))
sketch1.addConstraint(Sketcher.Constraint("Diameter", 39, 81.044073))
sketch1.addConstraint(Sketcher.Constraint("Radius", 22, 70.522037))
sketch1.addConstraint(Sketcher.Constraint("Distance", 56, 106.4694))
sketch1.addConstraint(Sketcher.Constraint("DistanceX", 19, 2, 19, 1, 71.864358))
sketch1.addConstraint(Sketcher.Constraint("DistanceX", 28, 2, 28, 1, 31.94665))
sketch1.addConstraint(Sketcher.Constraint("DistanceX", 31, 1, 31, 2, 194.70473))
sketch1.addConstraint(Sketcher.Constraint("DistanceX", 54, 2, 54, 1, 116.852919))
sketch1.addConstraint(Sketcher.Constraint("DistanceY", 24, 1, 24, 2, 48.54217))
sketch1.addConstraint(Sketcher.Constraint("DistanceX", 21, 2, -1, 1, 247.9752))
sketch1.addConstraint(Sketcher.Constraint("Distance", 11, 72.963178))
sketch1.addConstraint(Sketcher.Constraint("Distance", 13, 47.661169))
sketch1.addConstraint(Sketcher.Constraint("Distance", 57, 96.31932))
sketch1.addConstraint(Sketcher.Constraint("Distance", 60, 92.685772))
sketch1.addConstraint(Sketcher.Constraint("DistanceX", 0, 1, 0, 2, 287.888974))
sketch1.addConstraint(Sketcher.Constraint("DistanceX", 10, 1, 10, 2, 43.509434))
sketch1.addConstraint(Sketcher.Constraint("DistanceX", 21, 1, 21, 2, 31.536282))
sketch1.addConstraint(Sketcher.Constraint("DistanceX", 29, 2, 29, 1, 74.994876))
sketch1.addConstraint(Sketcher.Constraint("DistanceY", 1, 2, 1, 1, 72.630228))
sketch1.addConstraint(Sketcher.Constraint("DistanceX", 10, 2, -1, 1, 307.046122))
sketch1.addConstraint(Sketcher.Constraint("DistanceY", -1, 1, 11, 2, 40.384991))
sketch1.addConstraint(Sketcher.Constraint("DistanceX", 12, 2, -1, 1, 320.89835))
sketch1.addConstraint(Sketcher.Constraint("DistanceX", 30, 2, -1, 1, 277.907921))
sketch1.addConstraint(Sketcher.Constraint("DistanceX", 33, 2, -1, 1, 40.212761))
sketch1.addConstraint(Sketcher.Constraint("DistanceX", 37, 2, -1, 1, 54.064989))
sketch1.addConstraint(Sketcher.Constraint("DistanceX", 57, 2, -1, 1, 246.308768))
sketch1.addConstraint(Sketcher.Constraint("DistanceY", -1, 1, 57, 2, 429.992241))
sketch1.addConstraint(Sketcher.Constraint("DistanceY", -1, 1, 61, 2, 447.286912))
sketch1.addConstraint(Sketcher.Constraint("DistanceX", 64, 2, -1, 1, 166.215159))
pad1 = body.newObject("PartDesign::Pad", "Pad")
pad1.Profile = sketch1
pad1.Length = 20
doc.recompute()

fillet = body.newObject("PartDesign::Fillet", "Fillet")
fillet.Base = (pad1, edges_at(pad1, [
    (19.444, -30.989, 10),
    (-380.556, -30.989, 10),
    (-380.556, 300, 10),
    (-180.556, 600, 10),
    (19.444, 300, 10),
]))
fillet.Radius = 45

doc.recompute()
